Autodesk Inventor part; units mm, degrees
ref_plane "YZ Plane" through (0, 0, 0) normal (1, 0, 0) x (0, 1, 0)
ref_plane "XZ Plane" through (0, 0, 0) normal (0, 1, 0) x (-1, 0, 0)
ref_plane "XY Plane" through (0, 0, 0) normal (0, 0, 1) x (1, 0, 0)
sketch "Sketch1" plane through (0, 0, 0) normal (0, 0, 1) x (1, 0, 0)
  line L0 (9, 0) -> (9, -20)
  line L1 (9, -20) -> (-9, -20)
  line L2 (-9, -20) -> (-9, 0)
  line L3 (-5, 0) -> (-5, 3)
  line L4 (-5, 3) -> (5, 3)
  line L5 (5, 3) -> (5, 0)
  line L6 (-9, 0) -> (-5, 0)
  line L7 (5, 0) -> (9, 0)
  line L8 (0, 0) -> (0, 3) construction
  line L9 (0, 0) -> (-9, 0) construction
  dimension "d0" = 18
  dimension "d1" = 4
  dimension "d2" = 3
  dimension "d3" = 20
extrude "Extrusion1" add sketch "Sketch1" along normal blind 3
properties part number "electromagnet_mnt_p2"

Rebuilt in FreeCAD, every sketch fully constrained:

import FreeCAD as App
import Part
import Sketcher
from FreeCAD import Vector
Q = App.Units.Quantity

doc = App.newDocument("Part")
body = doc.addObject("PartDesign::Body", "Body")

# Sketch on XY plane
sketch1 = body.newObject("Sketcher::SketchObject", "Sketch")
sketch1.AttachmentSupport = (doc.getObject("XY_Plane"), [""])
sketch1.MapMode = "FlatFace"
sketch1.addGeometry([
    Part.LineSegment(Vector(9, -20, 0), Vector(9, 0, 0)),  # 0
    Part.LineSegment(Vector(9, 0, 0), Vector(5, 0, 0)),  # 1
    Part.LineSegment(Vector(5, 0, 0), Vector(5, 3, 0)),  # 2
    Part.LineSegment(Vector(5, 3, 0), Vector(-5, 3, 0)),  # 3
    Part.LineSegment(Vector(-5, 3, 0), Vector(-5, 0, 0)),  # 4
    Part.LineSegment(Vector(-5, 0, 0), Vector(-9, 0, 0)),  # 5
    Part.LineSegment(Vector(-9, 0, 0), Vector(-9, -20, 0)),  # 6
    Part.LineSegment(Vector(-9, -20, 0), Vector(9, -20, 0)),  # 7
], False)
sketch1.addConstraint([
    Sketcher.Constraint("Coincident", 0, 2, 1, 1),
    Sketcher.Constraint("Coincident", 1, 2, 2, 1),
    Sketcher.Constraint("Coincident", 2, 2, 3, 1),
    Sketcher.Constraint("Coincident", 3, 2, 4, 1),
    Sketcher.Constraint("Coincident", 4, 2, 5, 1),
    Sketcher.Constraint("Coincident", 5, 2, 6, 1),
    Sketcher.Constraint("Coincident", 6, 2, 7, 1),
    Sketcher.Constraint("Coincident", 7, 2, 0, 1),
    Sketcher.Constraint("Vertical", 0),
    Sketcher.Constraint("Horizontal", 1),
    Sketcher.Constraint("Vertical", 2),
    Sketcher.Constraint("Horizontal", 3),
    Sketcher.Constraint("Vertical", 4),
    Sketcher.Constraint("Horizontal", 5),
    Sketcher.Constraint("Vertical", 6),
    Sketcher.Constraint("Horizontal", 7),
    Sketcher.Constraint("Symmetric", 1, 2, 4, 2, -1, 1),
    Sketcher.Constraint("Symmetric", 0, 2, 5, 2, -2),
    Sketcher.Constraint("DistanceX", 1, 2, 1, 1, Q("4 mm")),
    Sketcher.Constraint("DistanceX", 7, 1, 7, 2, Q("18 mm")),
    Sketcher.Constraint("DistanceY", 0, 1, 0, 2, Q("20 mm")),
    Sketcher.Constraint("DistanceY", 2, 1, 2, 2, Q("3 mm")),
])
pad1 = body.newObject("PartDesign::Pad", "Pad")
pad1.Profile = sketch1
pad1.Length = 3

doc.recompute()
